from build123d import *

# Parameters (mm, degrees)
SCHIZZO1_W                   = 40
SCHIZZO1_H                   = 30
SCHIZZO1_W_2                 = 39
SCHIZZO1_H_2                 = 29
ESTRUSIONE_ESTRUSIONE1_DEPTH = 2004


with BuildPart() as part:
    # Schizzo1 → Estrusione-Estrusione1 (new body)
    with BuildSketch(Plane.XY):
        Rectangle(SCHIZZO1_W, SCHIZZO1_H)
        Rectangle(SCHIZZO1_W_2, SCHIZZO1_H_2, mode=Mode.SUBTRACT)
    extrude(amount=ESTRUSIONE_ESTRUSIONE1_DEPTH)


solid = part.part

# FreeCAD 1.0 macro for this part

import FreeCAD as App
import Part
import Sketcher
from FreeCAD import Vector


def add_polygon(sketch, points):
    """Adds a closed chain of lines whose ends are joined by coincident constraints."""
    first, n = sketch.GeometryCount, len(points)
    for a, b in zip(points, points[1:] + points[:1]):
        sketch.addGeometry(Part.LineSegment(App.Vector(*a, 0), App.Vector(*b, 0)), False)
    for i in range(n):
        sketch.addConstraint(Sketcher.Constraint("Coincident", first + i, 2, first + (i + 1) % n, 1))

doc = App.newDocument("Part")
params = doc.addObject("Spreadsheet::Sheet", "Params")
for row, (alias, value) in enumerate([
    ("sketch1_width", "40 mm"),
    ("sketch1_width2", "39 mm"),
    ("sketch1_height", "30 mm"),
    ("sketch1_height2", "29 mm"),
    ("pad1_length", "2004 mm"),
], start=1):
    params.set(f"A{row}", alias)
    params.set(f"B{row}", "=" + value)
    params.setAlias(f"B{row}", alias)

body = doc.addObject("PartDesign::Body", "Body")

# Sketch on XY plane
sketch1 = body.newObject("Sketcher::SketchObject", "Sketch")
sketch1.AttachmentSupport = (doc.getObject("XY_Plane"), [""])
sketch1.MapMode = "FlatFace"
add_polygon(sketch1, [(-20, 15), (-20, -15), (20, -15), (20, 15)])  # lines 0-3
add_polygon(sketch1, [(19.5, -14.5), (-19.5, -14.5), (-19.5, 14.5), (19.5, 14.5)])  # lines 4-7
sketch1.addConstraint([
    Sketcher.Constraint("Vertical", 0),
    Sketcher.Constraint("Horizontal", 1),
    Sketcher.Constraint("Vertical", 2),
    Sketcher.Constraint("Horizontal", 3),
    Sketcher.Constraint("Horizontal", 4),
    Sketcher.Constraint("Vertical", 5),
    Sketcher.Constraint("Horizontal", 6),
    Sketcher.Constraint("Vertical", 7),
    Sketcher.Constraint("Symmetric", 0, 2, 2, 2, -1, 1),
    Sketcher.Constraint("Symmetric", 4, 2, 6, 2, -1, 1),
    Sketcher.Constraint("DistanceX", 1, 1, 1, 2, 40.0),
    Sketcher.Constraint("DistanceX", 4, 2, 4, 1, 39.0),
    Sketcher.Constraint("DistanceY", 0, 2, 0, 1, 30.0),
    Sketcher.Constraint("DistanceY", 5, 1, 5, 2, 29.0),
])
sketch1.setExpression("Constraints[18]", "Params.sketch1_width")
sketch1.setExpression("Constraints[19]", "Params.sketch1_width2")
sketch1.setExpression("Constraints[20]", "Params.sketch1_height")
sketch1.setExpression("Constraints[21]", "Params.sketch1_height2")
pad1 = body.newObject("PartDesign::Pad", "Pad")
pad1.Profile = sketch1
pad1.setExpression("Length", "Params.pad1_length")

doc.recompute()
